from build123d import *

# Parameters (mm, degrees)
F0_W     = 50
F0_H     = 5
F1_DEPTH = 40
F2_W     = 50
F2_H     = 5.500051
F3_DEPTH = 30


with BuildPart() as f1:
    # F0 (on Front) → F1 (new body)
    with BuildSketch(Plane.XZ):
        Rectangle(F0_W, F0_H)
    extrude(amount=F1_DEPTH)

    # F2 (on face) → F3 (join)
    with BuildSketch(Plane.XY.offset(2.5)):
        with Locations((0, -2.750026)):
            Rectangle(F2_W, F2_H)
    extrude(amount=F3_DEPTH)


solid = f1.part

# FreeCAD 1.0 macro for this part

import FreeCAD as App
import Part
import Sketcher
from FreeCAD import Vector
Q = App.Units.Quantity


def add_polygon(sketch, points):
    """Adds a closed chain of lines whose ends are joined by coincident constraints."""
    first, n = sketch.GeometryCount, len(points)
    for a, b in zip(points, points[1:] + points[:1]):
        sketch.addGeometry(Part.LineSegment(App.Vector(*a, 0), App.Vector(*b, 0)), False)
    for i in range(n):
        sketch.addConstraint(Sketcher.Constraint("Coincident", first + i, 2, first + (i + 1) % n, 1))

doc = App.newDocument("Part")
body = doc.addObject("PartDesign::Body", "Body")

# Sketch on XZ plane
sketch1 = body.newObject("Sketcher::SketchObject", "Sketch")
sketch1.AttachmentSupport = (doc.getObject("XZ_Plane"), [""])
sketch1.MapMode = "FlatFace"
add_polygon(sketch1, [(-25, 2), (-25, -2), (25, -2), (25, 2)])  # lines 0-3
sketch1.addConstraint([
    Sketcher.Constraint("Vertical", 0),
    Sketcher.Constraint("Horizontal", 1),
    Sketcher.Constraint("Vertical", 2),
    Sketcher.Constraint("Horizontal", 3),
    Sketcher.Constraint("Symmetric", 0, 2, 2, 2, -1, 1),
    Sketcher.Constraint("DistanceX", 1, 1, 1, 2, Q("50 mm")),
    Sketcher.Constraint("DistanceY", 0, 2, 0, 1, Q("5 mm")),
])
pad1 = body.newObject("PartDesign::Pad", "Pad")
pad1.Profile = sketch1
pad1.Length = 40

# Sketch on XY plane
sketch2 = body.newObject("Sketcher::SketchObject", "Sketch001")
sketch2.AttachmentSupport = (doc.getObject("XY_Plane"), [""])
sketch2.MapMode = "FlatFace"
sketch2.AttachmentOffset = App.Placement(Vector(0, 0, 2.5), App.Rotation())
add_polygon(sketch2, [(-25, 0), (-25, -6), (25, -6), (25, 0)])  # lines 0-3
sketch2.addConstraint([
    Sketcher.Constraint("Vertical", 0),
    Sketcher.Constraint("Horizontal", 1),
    Sketcher.Constraint("Vertical", 2),
    Sketcher.Constraint("Horizontal", 3),
    Sketcher.Constraint("Symmetric", 2, 2, 3, 2, -1, 1),
    Sketcher.Constraint("DistanceX", 1, 1, 1, 2, Q("50 mm")),
    Sketcher.Constraint("DistanceY", 0, 2, 0, 1, Q("5.500051 mm")),
])
pad2 = body.newObject("PartDesign::Pad", "Pad001")
pad2.Profile = sketch2
pad2.Length = 30

doc.recompute()
